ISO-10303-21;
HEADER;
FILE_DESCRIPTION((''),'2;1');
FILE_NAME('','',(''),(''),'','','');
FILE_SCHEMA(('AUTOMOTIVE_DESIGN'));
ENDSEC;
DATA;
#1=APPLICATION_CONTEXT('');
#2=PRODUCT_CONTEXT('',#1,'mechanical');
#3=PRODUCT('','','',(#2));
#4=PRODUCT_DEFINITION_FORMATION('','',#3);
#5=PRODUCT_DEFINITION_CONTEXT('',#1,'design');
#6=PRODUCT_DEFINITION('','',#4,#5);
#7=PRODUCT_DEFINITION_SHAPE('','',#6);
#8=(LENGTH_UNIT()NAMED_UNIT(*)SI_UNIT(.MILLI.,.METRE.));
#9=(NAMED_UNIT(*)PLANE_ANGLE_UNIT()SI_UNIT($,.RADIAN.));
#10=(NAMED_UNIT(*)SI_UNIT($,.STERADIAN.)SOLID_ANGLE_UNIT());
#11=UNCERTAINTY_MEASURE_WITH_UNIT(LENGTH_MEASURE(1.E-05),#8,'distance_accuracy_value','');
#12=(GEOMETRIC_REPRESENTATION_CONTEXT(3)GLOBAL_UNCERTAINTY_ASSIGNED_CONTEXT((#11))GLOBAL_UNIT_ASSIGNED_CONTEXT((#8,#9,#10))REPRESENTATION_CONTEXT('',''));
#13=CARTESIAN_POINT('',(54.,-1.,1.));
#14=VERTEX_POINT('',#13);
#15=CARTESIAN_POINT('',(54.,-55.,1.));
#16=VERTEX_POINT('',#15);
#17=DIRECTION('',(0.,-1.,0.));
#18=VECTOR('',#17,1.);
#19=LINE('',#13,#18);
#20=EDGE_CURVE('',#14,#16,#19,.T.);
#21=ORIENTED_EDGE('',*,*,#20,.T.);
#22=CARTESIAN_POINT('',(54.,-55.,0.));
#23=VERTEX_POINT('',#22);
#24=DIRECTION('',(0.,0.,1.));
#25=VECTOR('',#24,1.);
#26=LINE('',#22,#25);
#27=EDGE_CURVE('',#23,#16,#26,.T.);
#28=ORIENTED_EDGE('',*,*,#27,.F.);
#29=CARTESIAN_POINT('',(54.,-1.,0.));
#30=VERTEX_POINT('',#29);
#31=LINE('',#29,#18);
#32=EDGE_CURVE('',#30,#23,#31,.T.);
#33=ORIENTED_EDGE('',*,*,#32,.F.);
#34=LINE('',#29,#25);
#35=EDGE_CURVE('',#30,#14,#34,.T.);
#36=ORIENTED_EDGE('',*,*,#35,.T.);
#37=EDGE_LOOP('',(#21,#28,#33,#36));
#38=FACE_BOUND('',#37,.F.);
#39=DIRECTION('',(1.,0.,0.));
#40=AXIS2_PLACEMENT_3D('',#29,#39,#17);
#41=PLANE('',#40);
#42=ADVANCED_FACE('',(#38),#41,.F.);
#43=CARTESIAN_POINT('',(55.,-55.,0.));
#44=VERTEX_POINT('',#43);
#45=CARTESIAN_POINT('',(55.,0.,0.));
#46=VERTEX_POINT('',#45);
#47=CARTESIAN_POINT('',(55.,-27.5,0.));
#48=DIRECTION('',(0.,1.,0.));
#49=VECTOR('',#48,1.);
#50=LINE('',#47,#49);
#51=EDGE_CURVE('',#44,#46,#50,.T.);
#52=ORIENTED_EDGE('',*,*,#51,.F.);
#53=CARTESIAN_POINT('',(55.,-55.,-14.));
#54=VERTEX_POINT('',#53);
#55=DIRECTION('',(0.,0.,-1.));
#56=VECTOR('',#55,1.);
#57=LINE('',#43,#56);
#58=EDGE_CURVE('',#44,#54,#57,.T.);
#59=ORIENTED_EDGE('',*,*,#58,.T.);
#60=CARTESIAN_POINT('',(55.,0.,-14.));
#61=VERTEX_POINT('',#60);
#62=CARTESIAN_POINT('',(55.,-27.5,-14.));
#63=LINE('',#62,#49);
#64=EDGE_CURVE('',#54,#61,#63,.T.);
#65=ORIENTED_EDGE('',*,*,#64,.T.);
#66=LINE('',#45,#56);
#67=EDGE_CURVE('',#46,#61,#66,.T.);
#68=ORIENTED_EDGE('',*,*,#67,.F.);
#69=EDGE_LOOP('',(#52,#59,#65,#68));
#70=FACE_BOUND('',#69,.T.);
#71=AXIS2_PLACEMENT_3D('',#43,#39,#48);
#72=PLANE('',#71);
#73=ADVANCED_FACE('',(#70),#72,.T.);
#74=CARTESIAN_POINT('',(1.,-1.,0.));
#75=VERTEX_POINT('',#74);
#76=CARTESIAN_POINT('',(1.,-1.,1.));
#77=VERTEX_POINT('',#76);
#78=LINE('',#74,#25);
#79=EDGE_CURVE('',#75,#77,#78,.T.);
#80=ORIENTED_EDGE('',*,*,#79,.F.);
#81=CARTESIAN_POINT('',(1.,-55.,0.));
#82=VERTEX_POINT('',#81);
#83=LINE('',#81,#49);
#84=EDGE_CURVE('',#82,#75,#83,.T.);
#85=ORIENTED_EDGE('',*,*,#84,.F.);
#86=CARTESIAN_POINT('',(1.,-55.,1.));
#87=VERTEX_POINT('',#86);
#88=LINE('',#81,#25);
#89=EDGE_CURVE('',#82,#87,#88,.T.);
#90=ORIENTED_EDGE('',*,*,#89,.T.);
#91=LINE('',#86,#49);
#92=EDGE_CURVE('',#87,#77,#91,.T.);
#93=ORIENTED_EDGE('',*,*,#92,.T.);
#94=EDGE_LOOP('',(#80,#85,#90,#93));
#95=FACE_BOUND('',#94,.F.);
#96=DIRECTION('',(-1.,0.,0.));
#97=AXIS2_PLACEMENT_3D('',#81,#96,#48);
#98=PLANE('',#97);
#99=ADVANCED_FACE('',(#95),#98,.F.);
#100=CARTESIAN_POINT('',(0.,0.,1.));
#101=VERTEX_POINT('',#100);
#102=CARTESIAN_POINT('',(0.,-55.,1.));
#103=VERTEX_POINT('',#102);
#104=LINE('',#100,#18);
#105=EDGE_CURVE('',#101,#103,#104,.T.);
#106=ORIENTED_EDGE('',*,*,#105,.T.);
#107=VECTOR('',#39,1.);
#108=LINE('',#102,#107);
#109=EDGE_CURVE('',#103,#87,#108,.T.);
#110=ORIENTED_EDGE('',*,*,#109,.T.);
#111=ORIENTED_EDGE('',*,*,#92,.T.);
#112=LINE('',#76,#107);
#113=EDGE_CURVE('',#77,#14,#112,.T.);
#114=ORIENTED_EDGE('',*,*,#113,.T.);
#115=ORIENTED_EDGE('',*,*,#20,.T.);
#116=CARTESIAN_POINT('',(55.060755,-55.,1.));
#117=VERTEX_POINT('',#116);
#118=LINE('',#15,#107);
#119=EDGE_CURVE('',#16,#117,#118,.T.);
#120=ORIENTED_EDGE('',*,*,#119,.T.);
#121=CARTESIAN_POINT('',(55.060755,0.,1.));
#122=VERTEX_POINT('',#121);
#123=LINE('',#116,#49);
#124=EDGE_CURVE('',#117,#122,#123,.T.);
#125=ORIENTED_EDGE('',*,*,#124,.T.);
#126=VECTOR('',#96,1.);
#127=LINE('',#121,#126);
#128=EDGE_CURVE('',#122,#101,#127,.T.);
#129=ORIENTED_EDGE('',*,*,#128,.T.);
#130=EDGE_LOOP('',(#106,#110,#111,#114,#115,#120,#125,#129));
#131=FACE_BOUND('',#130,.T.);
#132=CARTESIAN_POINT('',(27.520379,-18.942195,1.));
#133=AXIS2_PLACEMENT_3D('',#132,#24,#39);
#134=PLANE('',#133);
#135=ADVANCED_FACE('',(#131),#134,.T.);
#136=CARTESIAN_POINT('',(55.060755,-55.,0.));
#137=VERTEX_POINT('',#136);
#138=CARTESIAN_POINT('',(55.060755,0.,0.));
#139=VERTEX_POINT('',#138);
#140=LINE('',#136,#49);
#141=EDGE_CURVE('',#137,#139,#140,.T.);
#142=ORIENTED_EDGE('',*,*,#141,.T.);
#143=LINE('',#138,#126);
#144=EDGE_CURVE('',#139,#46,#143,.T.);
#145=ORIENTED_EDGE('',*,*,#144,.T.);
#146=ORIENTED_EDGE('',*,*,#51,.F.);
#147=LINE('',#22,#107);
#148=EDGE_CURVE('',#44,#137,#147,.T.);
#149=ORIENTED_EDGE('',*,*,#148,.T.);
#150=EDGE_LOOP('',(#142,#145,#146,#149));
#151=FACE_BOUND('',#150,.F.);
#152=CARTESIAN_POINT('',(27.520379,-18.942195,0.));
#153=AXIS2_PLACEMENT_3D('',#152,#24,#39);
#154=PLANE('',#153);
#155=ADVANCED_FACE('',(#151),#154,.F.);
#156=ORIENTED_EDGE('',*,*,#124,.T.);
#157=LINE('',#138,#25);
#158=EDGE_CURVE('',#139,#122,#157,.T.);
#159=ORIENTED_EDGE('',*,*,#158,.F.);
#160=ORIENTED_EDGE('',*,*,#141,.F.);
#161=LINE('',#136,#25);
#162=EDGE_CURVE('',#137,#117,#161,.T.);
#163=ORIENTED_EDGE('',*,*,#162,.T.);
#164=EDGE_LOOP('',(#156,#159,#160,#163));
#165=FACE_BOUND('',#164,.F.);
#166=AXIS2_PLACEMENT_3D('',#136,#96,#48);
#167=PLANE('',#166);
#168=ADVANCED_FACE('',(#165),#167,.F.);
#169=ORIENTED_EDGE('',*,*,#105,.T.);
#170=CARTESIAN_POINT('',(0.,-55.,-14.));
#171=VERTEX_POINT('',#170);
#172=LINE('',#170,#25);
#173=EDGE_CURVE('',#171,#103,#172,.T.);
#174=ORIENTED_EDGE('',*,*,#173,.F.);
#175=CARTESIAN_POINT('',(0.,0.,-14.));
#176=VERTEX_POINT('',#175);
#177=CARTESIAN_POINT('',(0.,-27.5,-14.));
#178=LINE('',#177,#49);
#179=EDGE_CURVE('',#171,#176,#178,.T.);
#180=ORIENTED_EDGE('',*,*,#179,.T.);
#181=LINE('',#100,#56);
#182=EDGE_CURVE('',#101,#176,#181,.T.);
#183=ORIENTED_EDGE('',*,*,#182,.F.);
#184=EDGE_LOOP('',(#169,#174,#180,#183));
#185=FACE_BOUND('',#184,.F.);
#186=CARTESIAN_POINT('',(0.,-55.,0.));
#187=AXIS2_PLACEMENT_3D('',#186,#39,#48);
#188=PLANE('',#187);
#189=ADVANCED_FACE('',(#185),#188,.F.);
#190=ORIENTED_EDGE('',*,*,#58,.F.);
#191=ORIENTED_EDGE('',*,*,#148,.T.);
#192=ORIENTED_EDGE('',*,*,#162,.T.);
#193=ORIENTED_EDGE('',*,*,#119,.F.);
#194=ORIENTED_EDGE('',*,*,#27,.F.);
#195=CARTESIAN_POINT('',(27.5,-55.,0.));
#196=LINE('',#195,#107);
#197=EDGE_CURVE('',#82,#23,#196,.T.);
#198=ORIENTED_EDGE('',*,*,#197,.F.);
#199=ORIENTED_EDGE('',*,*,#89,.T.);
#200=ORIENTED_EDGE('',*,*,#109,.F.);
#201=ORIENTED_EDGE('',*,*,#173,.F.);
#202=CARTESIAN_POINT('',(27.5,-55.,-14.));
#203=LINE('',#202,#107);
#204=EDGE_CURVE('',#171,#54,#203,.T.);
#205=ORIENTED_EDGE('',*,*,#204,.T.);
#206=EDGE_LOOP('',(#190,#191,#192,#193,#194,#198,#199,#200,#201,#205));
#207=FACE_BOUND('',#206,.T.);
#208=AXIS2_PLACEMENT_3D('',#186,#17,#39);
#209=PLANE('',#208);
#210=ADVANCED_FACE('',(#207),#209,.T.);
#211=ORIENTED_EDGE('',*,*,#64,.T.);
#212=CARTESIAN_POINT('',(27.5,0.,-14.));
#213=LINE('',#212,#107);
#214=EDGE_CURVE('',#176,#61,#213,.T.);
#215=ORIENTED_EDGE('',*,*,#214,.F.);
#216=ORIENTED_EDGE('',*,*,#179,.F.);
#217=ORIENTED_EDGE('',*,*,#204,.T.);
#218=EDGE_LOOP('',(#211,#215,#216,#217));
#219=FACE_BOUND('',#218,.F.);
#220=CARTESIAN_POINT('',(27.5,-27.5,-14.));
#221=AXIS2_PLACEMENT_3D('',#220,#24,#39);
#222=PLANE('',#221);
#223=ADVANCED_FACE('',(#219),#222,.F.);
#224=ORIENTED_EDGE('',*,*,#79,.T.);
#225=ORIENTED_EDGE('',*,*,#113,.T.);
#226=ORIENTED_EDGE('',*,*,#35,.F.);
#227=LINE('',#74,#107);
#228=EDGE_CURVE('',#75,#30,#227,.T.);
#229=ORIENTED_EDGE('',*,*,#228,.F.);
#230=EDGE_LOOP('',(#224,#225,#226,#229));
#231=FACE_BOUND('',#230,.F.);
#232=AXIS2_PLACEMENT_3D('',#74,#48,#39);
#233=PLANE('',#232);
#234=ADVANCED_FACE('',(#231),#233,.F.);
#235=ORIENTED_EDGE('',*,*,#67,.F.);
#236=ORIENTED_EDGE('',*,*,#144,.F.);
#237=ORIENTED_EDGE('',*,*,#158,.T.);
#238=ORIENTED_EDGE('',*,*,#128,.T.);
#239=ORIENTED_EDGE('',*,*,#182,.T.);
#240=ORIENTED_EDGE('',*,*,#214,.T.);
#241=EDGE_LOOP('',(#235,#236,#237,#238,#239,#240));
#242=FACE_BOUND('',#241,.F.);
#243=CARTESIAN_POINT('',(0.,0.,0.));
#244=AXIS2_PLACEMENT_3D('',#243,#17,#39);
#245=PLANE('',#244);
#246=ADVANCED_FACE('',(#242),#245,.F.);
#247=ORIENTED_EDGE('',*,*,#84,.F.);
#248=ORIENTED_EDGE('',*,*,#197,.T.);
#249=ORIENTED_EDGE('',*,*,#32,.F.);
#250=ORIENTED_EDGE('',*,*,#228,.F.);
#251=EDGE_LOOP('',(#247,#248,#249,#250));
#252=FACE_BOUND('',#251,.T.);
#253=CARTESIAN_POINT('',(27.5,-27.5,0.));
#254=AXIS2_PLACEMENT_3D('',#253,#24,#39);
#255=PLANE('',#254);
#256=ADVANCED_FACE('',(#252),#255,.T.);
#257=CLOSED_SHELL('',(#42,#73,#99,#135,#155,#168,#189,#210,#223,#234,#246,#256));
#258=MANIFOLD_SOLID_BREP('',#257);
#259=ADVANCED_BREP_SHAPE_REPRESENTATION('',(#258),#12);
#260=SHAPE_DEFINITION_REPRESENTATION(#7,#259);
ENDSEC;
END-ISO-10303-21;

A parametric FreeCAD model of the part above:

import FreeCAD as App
import Part
import Sketcher
from FreeCAD import Vector
Q = App.Units.Quantity


def add_polygon(sketch, points):
    """Adds a closed chain of lines whose ends are joined by coincident constraints."""
    first, n = sketch.GeometryCount, len(points)
    for a, b in zip(points, points[1:] + points[:1]):
        sketch.addGeometry(Part.LineSegment(App.Vector(*a, 0), App.Vector(*b, 0)), False)
    for i in range(n):
        sketch.addConstraint(Sketcher.Constraint("Coincident", first + i, 2, first + (i + 1) % n, 1))

doc = App.newDocument("Part")
body = doc.addObject("PartDesign::Body", "Body")

sketch1 = doc.addObject("Sketcher::SketchObject", "Sketch")
body.addObject(sketch1)
sketch1.AttachmentSupport = (doc.XY_Plane, [""])
sketch1.MapMode = "FlatFace"
add_polygon(sketch1, [(1, -1), (54, -1), (54, -55), (55.1, -55), (55.1, 0), (0, 0), (0, -55), (1, -55)])
sketch1.addConstraint([
    Sketcher.Constraint("Horizontal", 0),
    Sketcher.Constraint("Vertical", 1),
    Sketcher.Constraint("Horizontal", 2),
    Sketcher.Constraint("Vertical", 3),
    Sketcher.Constraint("Horizontal", 4),
    Sketcher.Constraint("Vertical", 5),
    Sketcher.Constraint("Horizontal", 6),
    Sketcher.Constraint("Vertical", 7),
    Sketcher.Constraint("Coincident", 4, 2, -1, 1),
    Sketcher.Constraint("Horizontal", 2, 2, 5, 2),
    Sketcher.Constraint("DistanceX", 0, 1, 0, 2, Q("53 mm")),
    Sketcher.Constraint("DistanceX", 6, 1, 6, 2, Q("1 mm")),
    Sketcher.Constraint("DistanceY", 1, 2, 1, 1, Q("54 mm")),
    Sketcher.Constraint("DistanceY", 3, 1, 3, 2, Q("55 mm")),
    Sketcher.Constraint("DistanceX", 2, 1, 2, 2, Q("1.060755 mm")),
])
pad1 = doc.addObject("PartDesign::Pad", "Pad")
body.addObject(pad1)
pad1.Profile = sketch1
pad1.Length = 1

sketch2 = doc.addObject("Sketcher::SketchObject", "Sketch001")
body.addObject(sketch2)
sketch2.AttachmentSupport = (doc.XY_Plane, [""])
sketch2.MapMode = "FlatFace"
add_polygon(sketch2, [(0, 0), (0, -55), (55, -55), (55, 0)])
sketch2.addConstraint([
    Sketcher.Constraint("Vertical", 0),
    Sketcher.Constraint("Horizontal", 1),
    Sketcher.Constraint("Vertical", 2),
    Sketcher.Constraint("Horizontal", 3),
    Sketcher.Constraint("Coincident", 3, 2, -1, 1),
    Sketcher.Constraint("Equal", 3, 0),
    Sketcher.Constraint("DistanceX", 1, 1, 1, 2, Q("55 mm")),
])
pad2 = doc.addObject("PartDesign::Pad", "Pad001")
body.addObject(pad2)
pad2.Profile = sketch2
pad2.Length = 14
pad2.Reversed = True

doc.recompute()
